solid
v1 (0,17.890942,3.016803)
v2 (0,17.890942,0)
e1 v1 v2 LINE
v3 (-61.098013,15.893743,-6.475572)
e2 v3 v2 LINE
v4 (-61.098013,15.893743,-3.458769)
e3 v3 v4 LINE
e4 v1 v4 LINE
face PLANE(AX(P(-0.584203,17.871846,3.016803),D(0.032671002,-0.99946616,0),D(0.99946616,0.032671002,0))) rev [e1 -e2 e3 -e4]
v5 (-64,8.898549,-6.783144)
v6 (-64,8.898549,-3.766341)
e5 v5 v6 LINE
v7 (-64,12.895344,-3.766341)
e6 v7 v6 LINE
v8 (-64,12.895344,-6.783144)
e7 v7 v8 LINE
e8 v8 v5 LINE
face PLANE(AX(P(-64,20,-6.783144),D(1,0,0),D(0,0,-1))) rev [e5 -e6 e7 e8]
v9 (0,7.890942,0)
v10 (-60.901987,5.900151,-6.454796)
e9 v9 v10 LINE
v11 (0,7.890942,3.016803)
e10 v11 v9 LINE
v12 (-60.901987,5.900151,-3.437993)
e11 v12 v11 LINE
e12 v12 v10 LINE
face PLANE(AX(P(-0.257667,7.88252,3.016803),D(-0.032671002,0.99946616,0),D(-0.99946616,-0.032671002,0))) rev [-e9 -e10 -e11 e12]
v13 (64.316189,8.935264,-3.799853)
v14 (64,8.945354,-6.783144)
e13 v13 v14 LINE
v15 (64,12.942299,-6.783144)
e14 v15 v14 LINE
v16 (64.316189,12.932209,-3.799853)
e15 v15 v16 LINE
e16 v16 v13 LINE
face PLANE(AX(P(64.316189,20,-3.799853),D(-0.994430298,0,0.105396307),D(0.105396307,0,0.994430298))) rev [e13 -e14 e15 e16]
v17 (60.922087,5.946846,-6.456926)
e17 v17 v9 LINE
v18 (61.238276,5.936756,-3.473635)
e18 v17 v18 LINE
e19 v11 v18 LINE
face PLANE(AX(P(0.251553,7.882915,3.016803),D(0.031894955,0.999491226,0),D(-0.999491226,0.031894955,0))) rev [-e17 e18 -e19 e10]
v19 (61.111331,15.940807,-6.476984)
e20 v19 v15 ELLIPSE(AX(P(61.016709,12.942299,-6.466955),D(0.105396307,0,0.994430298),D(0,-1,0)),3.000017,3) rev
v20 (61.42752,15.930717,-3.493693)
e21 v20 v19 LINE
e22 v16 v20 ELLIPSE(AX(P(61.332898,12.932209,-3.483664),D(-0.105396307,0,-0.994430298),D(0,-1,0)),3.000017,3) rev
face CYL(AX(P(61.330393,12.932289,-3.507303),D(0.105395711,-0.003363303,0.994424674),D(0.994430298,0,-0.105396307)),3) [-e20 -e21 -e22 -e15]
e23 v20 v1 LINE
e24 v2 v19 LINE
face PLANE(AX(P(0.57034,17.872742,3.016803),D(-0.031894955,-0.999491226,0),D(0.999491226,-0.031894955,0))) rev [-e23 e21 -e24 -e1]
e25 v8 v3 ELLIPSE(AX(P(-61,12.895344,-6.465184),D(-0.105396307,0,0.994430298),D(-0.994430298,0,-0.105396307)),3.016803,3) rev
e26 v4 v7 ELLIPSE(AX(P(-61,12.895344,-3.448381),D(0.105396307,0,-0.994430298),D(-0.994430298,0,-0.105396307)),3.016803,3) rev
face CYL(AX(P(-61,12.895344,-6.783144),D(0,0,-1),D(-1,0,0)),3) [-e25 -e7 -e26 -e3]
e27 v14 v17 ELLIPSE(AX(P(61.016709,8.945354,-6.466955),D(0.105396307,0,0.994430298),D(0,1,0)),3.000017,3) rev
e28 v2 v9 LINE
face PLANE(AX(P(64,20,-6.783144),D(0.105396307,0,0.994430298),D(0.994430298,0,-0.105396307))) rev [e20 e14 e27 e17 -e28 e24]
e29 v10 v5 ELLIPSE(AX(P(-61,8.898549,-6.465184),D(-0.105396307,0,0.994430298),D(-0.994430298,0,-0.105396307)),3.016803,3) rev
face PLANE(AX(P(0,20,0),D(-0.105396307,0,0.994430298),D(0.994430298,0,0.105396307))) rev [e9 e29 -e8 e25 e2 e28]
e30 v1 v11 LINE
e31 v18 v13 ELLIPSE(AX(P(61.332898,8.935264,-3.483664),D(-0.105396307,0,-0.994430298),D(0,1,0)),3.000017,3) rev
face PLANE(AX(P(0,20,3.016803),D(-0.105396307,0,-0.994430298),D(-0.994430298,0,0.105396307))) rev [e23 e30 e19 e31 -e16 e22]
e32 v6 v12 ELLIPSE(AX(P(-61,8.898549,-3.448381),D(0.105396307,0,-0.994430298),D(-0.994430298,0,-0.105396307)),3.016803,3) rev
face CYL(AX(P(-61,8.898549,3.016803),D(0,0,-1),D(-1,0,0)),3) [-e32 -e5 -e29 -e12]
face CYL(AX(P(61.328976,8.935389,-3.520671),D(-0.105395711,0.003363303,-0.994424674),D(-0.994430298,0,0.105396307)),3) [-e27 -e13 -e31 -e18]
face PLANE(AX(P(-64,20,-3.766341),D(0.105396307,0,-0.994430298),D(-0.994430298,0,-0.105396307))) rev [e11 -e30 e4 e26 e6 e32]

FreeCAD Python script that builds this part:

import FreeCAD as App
import Part
import Sketcher
Q = App.Units.Quantity


def edges_at(feature, points):
    """Names of the edges that pass closest to the given points."""
    edges = feature.Shape.Edges
    near = lambda p: min(range(len(edges)), key=lambda i: edges[i].distToShape(Part.Vertex(*p))[0])
    return sorted({f"Edge{near(p) + 1}" for p in points})


def add_polygon(sketch, points):
    """Adds a closed chain of lines whose ends are joined by coincident constraints."""
    first, n = sketch.GeometryCount, len(points)
    for a, b in zip(points, points[1:] + points[:1]):
        sketch.addGeometry(Part.LineSegment(App.Vector(*a, 0), App.Vector(*b, 0)), False)
    for i in range(n):
        sketch.addConstraint(Sketcher.Constraint("Coincident", first + i, 2, first + (i + 1) % n, 1))

doc = App.newDocument("Part")
body = doc.addObject("PartDesign::Body", "Body")

# Sketch on XZ plane
sketch1 = body.newObject("Sketcher::SketchObject", "Sketch")
sketch1.AttachmentSupport = (doc.getObject("XZ_Plane"), [""])
sketch1.MapMode = "FlatFace"
add_polygon(sketch1, [(0, 0), (-64, -6.783144), (-64, -3.766341), (0, 3.016803), (64.316189, -3.799853), (64, -6.783144)])  # lines 0-5
sketch1.addConstraint([
    Sketcher.Constraint("Vertical", 1),
    Sketcher.Constraint("Coincident", 5, 2, -1, 1),
    Sketcher.Constraint("Symmetric", 0, 2, 4, 2, -2),
    Sketcher.Constraint("PointOnObject", 2, 2, -2),
    Sketcher.Constraint("Parallel", 0, 2),
    Sketcher.Constraint("Perpendicular", 3, 4),
    Sketcher.Constraint("Perpendicular", 4, 5),
    Sketcher.Constraint("Distance", 4, 3.0),
    Sketcher.Constraint("DistanceX", 0, 2, -1, 1, 64.0),
    Sketcher.Constraint("Angle", 0, Q("-173.95 deg")),
])
pad1 = body.newObject("PartDesign::Pad", "Pad")
pad1.Profile = sketch1
pad1.Length = 20
pad1.Reversed = True

# Sketch on XY plane
sketch2 = body.newObject("Sketcher::SketchObject", "Sketch001")
sketch2.AttachmentSupport = (doc.getObject("XY_Plane"), [""])
sketch2.MapMode = "FlatFace"
add_polygon(sketch2, [(0, 7.890942), (-64, 5.798881), (-64, 0), (64.316189, 0), (64.316189, 5.838536)])  # lines 0-4
add_polygon(sketch2, [(-64, 20), (-64, 15.798881), (0, 17.890942), (64.316189, 15.838536), (64.316189, 20)])  # lines 5-9
sketch2.addConstraint([
    Sketcher.Constraint("Vertical", 1),
    Sketcher.Constraint("Horizontal", 2),
    Sketcher.Constraint("Vertical", 3),
    Sketcher.Constraint("Vertical", 5),
    Sketcher.Constraint("Vertical", 8),
    Sketcher.Constraint("Horizontal", 9),
    Sketcher.Constraint("PointOnObject", 1, 2, -1),
    Sketcher.Constraint("PointOnObject", 4, 2, -2),
    Sketcher.Constraint("PointOnObject", 6, 2, -2),
    Sketcher.Constraint("Parallel", 0, 6),
    Sketcher.Constraint("Parallel", 4, 7),
    Sketcher.Constraint("Vertical", 1, 2, 5, 2),
    Sketcher.Constraint("Vertical", 3, 2, 7, 2),
    Sketcher.Constraint("DistanceX", 0, 2, -1, 1, 64.0),
    Sketcher.Constraint("DistanceY", -1, 1, 8, 2, 20.0),
    Sketcher.Constraint("DistanceY", 0, 2, 5, 2, 10.0),
    Sketcher.Constraint("DistanceX", 2, 1, 2, 2, 128.316189),
    Sketcher.Constraint("DistanceY", 1, 2, 1, 1, 5.798881),
    Sketcher.Constraint("DistanceY", 3, 1, 3, 2, 5.838536),
    Sketcher.Constraint("DistanceY", 0, 2, 4, 2, 2.092061),
])
pocket1 = body.newObject("PartDesign::Pocket", "Pocket")
pocket1.Profile = sketch2
pocket1.Type = "ThroughAll"
pocket1.Midplane = True
doc.recompute()

fillet = body.newObject("PartDesign::Fillet", "Fillet")
fillet.Base = (pocket1, edges_at(pocket1, [
    (64.158, 15.844, -5.291),
    (64.158, 5.844, -5.291),
    (-64, 5.799, -5.275),
    (-64, 15.799, -5.275),
]))
fillet.Radius = 3

doc.recompute()
